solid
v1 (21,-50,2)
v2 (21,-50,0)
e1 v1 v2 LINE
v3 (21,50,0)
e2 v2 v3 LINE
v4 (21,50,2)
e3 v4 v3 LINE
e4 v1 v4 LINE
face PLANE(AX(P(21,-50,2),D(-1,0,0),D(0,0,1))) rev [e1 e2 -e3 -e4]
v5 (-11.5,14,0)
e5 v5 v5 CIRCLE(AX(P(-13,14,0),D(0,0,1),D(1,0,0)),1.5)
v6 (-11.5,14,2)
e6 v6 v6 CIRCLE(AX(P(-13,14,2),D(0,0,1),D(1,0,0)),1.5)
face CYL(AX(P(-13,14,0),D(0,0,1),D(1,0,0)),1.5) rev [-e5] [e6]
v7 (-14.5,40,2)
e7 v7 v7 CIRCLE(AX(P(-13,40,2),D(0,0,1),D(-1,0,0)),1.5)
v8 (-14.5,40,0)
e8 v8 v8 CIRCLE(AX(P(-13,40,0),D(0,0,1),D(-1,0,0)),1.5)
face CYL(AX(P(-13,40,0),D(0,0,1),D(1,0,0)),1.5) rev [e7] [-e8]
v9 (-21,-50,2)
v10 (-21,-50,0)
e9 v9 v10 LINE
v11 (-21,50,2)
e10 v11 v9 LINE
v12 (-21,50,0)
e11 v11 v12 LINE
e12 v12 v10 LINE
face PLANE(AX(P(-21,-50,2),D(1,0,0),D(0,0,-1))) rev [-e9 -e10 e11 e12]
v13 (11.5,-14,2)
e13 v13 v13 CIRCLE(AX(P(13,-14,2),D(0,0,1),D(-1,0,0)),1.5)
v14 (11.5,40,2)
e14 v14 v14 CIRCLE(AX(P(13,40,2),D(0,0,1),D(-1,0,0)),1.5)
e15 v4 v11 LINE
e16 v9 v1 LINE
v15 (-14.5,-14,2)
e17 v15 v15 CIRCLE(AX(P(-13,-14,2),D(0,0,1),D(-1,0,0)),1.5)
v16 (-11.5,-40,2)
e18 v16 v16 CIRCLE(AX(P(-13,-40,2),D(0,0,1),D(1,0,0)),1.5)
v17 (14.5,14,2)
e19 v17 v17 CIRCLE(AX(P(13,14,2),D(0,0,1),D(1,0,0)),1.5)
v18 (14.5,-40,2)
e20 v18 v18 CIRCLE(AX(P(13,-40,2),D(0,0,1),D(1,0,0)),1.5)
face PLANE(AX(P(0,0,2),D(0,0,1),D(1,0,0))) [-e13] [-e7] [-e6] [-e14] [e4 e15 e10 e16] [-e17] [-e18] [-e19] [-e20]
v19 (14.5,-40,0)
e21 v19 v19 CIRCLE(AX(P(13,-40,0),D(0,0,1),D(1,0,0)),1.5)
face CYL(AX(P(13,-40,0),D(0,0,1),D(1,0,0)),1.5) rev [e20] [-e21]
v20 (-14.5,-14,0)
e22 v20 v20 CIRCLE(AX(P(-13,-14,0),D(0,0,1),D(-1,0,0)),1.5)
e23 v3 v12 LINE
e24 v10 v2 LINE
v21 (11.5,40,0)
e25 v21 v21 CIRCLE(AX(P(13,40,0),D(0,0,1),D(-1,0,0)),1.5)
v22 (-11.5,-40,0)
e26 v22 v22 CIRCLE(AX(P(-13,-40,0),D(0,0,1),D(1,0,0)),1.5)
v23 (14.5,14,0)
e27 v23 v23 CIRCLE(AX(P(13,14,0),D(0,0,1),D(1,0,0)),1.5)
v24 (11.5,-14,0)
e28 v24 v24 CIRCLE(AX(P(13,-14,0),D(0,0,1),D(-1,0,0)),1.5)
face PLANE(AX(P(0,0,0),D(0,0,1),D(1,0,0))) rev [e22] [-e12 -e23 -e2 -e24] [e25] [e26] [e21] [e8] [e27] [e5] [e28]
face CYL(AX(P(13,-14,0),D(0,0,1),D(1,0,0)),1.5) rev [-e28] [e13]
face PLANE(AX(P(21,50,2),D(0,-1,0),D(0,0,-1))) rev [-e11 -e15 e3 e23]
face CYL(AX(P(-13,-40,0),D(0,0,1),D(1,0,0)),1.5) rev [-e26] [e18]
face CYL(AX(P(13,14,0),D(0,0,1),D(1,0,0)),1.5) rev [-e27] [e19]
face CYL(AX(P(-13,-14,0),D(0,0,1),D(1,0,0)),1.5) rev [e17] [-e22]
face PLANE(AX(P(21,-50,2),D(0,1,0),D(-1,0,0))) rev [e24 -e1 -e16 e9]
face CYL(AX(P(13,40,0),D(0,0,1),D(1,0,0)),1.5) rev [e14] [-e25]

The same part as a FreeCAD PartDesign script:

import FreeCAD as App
import Part
import Sketcher

V = App.Vector


def add_polygon(sketch, points):
    """Adds a closed chain of lines whose ends are joined by coincident constraints."""
    first, n = sketch.GeometryCount, len(points)
    for a, b in zip(points, points[1:] + points[:1]):
        sketch.addGeometry(Part.LineSegment(App.Vector(*a, 0), App.Vector(*b, 0)), False)
    for i in range(n):
        sketch.addConstraint(Sketcher.Constraint("Coincident", first + i, 2, first + (i + 1) % n, 1))

doc = App.newDocument("Part")
body = doc.addObject("PartDesign::Body", "Body")

# Sketch on XY plane
sketch1 = body.newObject("Sketcher::SketchObject", "Sketch")
sketch1.AttachmentSupport = (doc.getObject("XY_Plane"), [""])
sketch1.MapMode = "FlatFace"
add_polygon(sketch1, [(-21, 50), (-21, -50), (21, -50), (21, 50)])  # lines 0-3
sketch1.addConstraint(Sketcher.Constraint("Vertical", 0))
sketch1.addConstraint(Sketcher.Constraint("Horizontal", 1))
sketch1.addConstraint(Sketcher.Constraint("Vertical", 2))
sketch1.addConstraint(Sketcher.Constraint("Horizontal", 3))
sketch1.addConstraint(Sketcher.Constraint("Symmetric", 0, 2, 2, 2, -1, 1))
sketch1.addConstraint(Sketcher.Constraint("DistanceX", 1, 1, 1, 2, 42.0))
sketch1.addConstraint(Sketcher.Constraint("DistanceY", 0, 2, 0, 1, 100.0))
pad1 = body.newObject("PartDesign::Pad", "Pad")
pad1.Profile = sketch1
pad1.Length = 2

# Sketch on XY plane
sketch2 = body.newObject("Sketcher::SketchObject", "Sketch001")
sketch2.AttachmentSupport = (doc.getObject("XY_Plane"), [""])
sketch2.MapMode = "FlatFace"
sketch2.AttachmentOffset = App.Placement(V(0, 0, 2), App.Rotation())
sketch2.addGeometry(Part.Circle(V(-13, -40, 0), V(0, 0, 1), 1.5), False)
sketch2.addGeometry(Part.Circle(V(13, -40, 0), V(0, 0, 1), 1.5), False)
sketch2.addGeometry(Part.Circle(V(13, -14, 0), V(0, 0, 1), 1.5), False)
sketch2.addGeometry(Part.Circle(V(-13, -14, 0), V(0, 0, 1), 1.5), False)
sketch2.addGeometry(Part.Circle(V(13, 40, 0), V(0, 0, 1), 1.5), False)
sketch2.addGeometry(Part.Circle(V(-13, 40, 0), V(0, 0, 1), 1.5), False)
sketch2.addGeometry(Part.Circle(V(13, 14, 0), V(0, 0, 1), 1.5), False)
sketch2.addGeometry(Part.Circle(V(-13, 14, 0), V(0, 0, 1), 1.5), False)
sketch2.addConstraint(Sketcher.Constraint("Equal", 0, 1))
sketch2.addConstraint(Sketcher.Constraint("Equal", 1, 2))
sketch2.addConstraint(Sketcher.Constraint("Equal", 2, 3))
sketch2.addConstraint(Sketcher.Constraint("Equal", 3, 4))
sketch2.addConstraint(Sketcher.Constraint("Equal", 4, 5))
sketch2.addConstraint(Sketcher.Constraint("Equal", 5, 6))
sketch2.addConstraint(Sketcher.Constraint("Equal", 6, 7))
sketch2.addConstraint(Sketcher.Constraint("Symmetric", 0, 3, 4, 3, -1, 1))
sketch2.addConstraint(Sketcher.Constraint("Symmetric", 1, 3, 5, 3, -1, 1))
sketch2.addConstraint(Sketcher.Constraint("Symmetric", 3, 3, 6, 3, -1, 1))
sketch2.addConstraint(Sketcher.Constraint("Symmetric", 2, 3, 7, 3, -1, 1))
sketch2.addConstraint(Sketcher.Constraint("Symmetric", 0, 3, 1, 3, -2))
sketch2.addConstraint(Sketcher.Constraint("Symmetric", 2, 3, 3, 3, -2))
sketch2.addConstraint(Sketcher.Constraint("Vertical", 1, 3, 2, 3))
sketch2.addConstraint(Sketcher.Constraint("Diameter", 0, 3.0))
sketch2.addConstraint(Sketcher.Constraint("DistanceX", 0, 3, -1, 1, 13.0))
sketch2.addConstraint(Sketcher.Constraint("DistanceY", 0, 3, -1, 1, 40.0))
sketch2.addConstraint(Sketcher.Constraint("DistanceY", 2, 3, -1, 1, 14.0))
pocket1 = body.newObject("PartDesign::Pocket", "Pocket")
pocket1.Profile = sketch2
pocket1.Length = 2

doc.recompute()
